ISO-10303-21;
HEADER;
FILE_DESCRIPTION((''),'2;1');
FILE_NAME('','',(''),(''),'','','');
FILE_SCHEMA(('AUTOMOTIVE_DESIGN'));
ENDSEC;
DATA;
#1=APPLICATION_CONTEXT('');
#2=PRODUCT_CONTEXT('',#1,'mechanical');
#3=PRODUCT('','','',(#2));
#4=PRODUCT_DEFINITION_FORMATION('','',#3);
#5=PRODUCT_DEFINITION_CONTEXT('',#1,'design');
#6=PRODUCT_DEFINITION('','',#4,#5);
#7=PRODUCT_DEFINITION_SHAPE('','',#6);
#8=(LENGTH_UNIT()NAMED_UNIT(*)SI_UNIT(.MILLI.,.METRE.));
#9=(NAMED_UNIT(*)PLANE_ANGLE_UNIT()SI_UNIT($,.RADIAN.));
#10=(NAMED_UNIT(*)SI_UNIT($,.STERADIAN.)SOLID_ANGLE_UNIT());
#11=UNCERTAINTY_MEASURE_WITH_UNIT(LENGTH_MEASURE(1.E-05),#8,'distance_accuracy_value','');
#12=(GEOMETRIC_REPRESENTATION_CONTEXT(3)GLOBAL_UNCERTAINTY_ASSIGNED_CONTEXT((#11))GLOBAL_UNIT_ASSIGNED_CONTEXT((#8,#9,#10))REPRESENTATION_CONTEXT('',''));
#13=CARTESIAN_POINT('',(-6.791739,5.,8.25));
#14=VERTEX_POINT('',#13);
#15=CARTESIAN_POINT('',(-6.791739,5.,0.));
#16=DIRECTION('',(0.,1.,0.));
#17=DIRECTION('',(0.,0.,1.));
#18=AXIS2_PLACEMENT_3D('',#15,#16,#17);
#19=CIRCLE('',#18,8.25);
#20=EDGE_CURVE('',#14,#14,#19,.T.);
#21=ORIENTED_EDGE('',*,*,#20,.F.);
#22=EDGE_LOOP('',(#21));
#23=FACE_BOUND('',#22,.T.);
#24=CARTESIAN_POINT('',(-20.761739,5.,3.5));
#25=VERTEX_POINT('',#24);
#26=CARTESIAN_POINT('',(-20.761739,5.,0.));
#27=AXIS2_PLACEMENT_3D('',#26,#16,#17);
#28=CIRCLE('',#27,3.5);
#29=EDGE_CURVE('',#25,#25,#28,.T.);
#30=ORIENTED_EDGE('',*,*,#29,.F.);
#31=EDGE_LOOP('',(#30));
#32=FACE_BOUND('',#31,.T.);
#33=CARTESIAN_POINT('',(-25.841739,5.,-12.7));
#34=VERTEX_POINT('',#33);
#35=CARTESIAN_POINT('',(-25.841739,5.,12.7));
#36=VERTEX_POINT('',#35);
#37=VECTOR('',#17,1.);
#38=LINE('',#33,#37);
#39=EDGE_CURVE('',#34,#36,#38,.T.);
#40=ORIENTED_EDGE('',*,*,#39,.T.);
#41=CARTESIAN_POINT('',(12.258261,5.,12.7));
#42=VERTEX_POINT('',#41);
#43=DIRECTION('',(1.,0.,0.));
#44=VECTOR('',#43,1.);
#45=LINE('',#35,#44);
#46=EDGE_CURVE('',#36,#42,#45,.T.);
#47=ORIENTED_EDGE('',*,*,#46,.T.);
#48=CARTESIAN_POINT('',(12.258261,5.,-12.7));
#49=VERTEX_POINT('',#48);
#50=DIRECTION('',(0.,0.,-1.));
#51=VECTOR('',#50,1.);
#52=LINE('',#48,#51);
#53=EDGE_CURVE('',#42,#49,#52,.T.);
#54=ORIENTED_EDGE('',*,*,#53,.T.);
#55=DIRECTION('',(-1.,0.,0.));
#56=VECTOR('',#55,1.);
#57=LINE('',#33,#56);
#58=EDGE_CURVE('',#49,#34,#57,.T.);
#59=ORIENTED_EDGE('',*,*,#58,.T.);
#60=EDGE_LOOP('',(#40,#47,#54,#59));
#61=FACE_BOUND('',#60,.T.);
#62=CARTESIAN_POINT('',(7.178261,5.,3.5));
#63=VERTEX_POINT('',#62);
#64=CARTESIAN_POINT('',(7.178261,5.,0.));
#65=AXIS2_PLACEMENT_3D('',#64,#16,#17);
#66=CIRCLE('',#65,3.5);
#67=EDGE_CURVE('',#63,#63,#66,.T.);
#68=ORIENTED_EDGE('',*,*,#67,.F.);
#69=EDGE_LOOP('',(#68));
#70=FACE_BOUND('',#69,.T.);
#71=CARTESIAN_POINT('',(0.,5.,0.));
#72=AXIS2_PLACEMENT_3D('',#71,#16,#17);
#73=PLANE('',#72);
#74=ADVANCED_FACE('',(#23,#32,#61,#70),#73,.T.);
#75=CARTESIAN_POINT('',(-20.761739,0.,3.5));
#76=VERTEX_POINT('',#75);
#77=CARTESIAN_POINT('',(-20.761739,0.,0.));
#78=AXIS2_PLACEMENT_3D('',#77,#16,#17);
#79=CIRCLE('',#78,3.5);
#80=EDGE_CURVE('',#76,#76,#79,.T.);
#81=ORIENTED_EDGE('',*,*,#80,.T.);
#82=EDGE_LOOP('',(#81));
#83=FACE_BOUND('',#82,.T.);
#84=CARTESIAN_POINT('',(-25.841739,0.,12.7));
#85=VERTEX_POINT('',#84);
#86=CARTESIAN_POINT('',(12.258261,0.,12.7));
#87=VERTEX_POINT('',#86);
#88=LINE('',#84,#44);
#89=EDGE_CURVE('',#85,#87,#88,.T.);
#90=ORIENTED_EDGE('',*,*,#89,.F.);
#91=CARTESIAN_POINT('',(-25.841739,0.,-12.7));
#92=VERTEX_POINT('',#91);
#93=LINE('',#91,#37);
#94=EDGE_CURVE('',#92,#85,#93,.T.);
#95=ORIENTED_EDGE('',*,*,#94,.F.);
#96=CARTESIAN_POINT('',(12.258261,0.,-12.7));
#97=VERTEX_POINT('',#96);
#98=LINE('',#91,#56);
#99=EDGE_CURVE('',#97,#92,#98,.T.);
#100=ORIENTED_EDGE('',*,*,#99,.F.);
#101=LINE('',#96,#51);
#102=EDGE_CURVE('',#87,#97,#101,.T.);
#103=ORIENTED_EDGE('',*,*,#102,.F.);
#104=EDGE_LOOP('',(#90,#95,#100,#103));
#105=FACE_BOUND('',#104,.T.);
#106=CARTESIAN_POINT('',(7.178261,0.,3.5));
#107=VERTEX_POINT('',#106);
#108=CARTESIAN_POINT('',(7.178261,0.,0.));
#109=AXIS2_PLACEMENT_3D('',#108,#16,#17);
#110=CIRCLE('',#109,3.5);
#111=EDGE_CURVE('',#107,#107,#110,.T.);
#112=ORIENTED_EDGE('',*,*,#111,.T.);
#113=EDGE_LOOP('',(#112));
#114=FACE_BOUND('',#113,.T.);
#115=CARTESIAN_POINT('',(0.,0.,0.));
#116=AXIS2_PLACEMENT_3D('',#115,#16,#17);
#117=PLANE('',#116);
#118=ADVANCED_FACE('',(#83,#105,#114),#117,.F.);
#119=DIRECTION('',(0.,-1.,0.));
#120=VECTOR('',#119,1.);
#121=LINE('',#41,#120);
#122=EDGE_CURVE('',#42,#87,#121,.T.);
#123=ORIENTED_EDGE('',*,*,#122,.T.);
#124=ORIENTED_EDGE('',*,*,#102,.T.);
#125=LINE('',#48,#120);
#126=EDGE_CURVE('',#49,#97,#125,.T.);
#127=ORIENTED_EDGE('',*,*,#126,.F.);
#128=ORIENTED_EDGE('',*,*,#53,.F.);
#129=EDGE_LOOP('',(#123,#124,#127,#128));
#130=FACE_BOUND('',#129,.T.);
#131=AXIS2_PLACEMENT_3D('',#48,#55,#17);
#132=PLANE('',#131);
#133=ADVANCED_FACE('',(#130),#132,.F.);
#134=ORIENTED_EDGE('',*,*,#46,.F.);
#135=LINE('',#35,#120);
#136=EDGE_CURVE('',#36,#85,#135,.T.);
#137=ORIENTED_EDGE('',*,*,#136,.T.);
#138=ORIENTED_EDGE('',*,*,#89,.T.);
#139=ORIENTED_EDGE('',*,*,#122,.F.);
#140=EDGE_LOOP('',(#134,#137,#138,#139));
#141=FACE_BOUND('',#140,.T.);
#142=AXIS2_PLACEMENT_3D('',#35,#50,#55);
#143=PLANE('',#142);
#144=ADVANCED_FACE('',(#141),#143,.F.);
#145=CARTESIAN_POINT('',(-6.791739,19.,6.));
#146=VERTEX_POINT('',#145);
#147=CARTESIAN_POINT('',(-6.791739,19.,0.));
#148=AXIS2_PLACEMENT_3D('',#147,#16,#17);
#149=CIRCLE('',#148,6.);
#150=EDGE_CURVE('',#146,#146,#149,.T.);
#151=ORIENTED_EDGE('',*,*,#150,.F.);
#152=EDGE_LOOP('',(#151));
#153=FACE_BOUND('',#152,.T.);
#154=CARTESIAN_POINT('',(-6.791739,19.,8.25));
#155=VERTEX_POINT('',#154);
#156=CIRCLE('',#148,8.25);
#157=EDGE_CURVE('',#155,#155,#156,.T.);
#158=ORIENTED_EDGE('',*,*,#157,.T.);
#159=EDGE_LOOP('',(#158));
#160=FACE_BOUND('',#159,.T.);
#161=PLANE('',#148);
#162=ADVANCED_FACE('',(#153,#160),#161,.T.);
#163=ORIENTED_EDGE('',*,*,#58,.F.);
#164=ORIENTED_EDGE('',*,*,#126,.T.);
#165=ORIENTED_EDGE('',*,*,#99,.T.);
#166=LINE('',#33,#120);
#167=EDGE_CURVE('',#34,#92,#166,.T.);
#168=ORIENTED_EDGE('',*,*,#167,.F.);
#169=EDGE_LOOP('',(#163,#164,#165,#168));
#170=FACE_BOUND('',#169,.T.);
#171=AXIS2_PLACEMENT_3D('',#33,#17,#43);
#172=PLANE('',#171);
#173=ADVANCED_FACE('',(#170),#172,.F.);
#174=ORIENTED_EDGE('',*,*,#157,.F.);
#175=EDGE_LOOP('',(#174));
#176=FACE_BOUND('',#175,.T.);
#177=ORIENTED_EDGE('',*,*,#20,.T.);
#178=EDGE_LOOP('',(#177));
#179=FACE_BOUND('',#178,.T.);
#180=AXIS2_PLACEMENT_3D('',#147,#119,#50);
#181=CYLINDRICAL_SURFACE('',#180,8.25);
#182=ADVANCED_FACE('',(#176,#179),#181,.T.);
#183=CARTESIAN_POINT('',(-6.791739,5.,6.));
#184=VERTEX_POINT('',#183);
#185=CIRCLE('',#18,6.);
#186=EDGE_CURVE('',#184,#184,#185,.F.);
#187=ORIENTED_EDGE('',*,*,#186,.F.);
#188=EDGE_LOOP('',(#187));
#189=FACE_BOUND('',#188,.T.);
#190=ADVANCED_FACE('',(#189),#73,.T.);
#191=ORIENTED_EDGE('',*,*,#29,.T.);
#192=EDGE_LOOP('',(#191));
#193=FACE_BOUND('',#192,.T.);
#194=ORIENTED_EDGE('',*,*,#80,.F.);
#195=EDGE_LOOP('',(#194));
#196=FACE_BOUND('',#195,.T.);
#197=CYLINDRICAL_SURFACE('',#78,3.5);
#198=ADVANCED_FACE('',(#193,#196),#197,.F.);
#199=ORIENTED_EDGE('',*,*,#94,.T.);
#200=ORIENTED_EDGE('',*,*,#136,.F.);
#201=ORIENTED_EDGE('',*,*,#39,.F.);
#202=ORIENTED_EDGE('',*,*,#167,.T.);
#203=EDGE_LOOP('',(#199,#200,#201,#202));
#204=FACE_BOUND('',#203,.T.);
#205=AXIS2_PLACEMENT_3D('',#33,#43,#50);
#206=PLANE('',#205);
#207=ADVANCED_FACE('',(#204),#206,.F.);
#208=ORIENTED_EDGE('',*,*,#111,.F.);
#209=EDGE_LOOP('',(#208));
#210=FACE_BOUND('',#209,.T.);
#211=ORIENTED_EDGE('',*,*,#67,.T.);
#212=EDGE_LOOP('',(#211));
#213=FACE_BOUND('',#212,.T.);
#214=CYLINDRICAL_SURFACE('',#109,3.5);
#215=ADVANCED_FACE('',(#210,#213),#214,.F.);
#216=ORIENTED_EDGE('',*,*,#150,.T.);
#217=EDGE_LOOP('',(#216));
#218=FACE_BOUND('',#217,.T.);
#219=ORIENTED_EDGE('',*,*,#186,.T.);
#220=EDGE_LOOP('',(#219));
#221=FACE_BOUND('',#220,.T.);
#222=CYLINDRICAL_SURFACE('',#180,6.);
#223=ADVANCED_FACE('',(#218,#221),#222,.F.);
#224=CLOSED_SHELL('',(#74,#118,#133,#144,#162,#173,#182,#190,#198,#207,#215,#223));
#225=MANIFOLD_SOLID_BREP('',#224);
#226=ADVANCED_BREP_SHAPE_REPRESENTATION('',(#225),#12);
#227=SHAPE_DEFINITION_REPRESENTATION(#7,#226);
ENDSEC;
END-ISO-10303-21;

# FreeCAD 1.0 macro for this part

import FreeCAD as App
import Part
import Sketcher


def add_polygon(sketch, points):
    """Adds a closed chain of lines whose ends are joined by coincident constraints."""
    first, n = sketch.GeometryCount, len(points)
    for a, b in zip(points, points[1:] + points[:1]):
        sketch.addGeometry(Part.LineSegment(App.Vector(*a, 0), App.Vector(*b, 0)), False)
    for i in range(n):
        sketch.addConstraint(Sketcher.Constraint("Coincident", first + i, 2, first + (i + 1) % n, 1))

doc = App.newDocument("Part")
body = doc.addObject("PartDesign::Body", "Body")

# Sketch on XZ plane
sketch1 = body.newObject("Sketcher::SketchObject", "Sketch")
sketch1.AttachmentSupport = (doc.getObject("XZ_Plane"), [""])
sketch1.MapMode = "FlatFace"
add_polygon(sketch1, [(-26, -13), (-26, 13), (12, 13), (12, -13)])  # lines 0-3
sketch1.addConstraint(Sketcher.Constraint("Vertical", 0))
sketch1.addConstraint(Sketcher.Constraint("Horizontal", 1))
sketch1.addConstraint(Sketcher.Constraint("Vertical", 2))
sketch1.addConstraint(Sketcher.Constraint("Horizontal", 3))
sketch1.addConstraint(Sketcher.Constraint("DistanceX", 1, 1, 1, 2, 38.1))
sketch1.addConstraint(Sketcher.Constraint("DistanceY", 0, 1, 0, 2, 25.4))
sketch1.addConstraint(Sketcher.Constraint("DistanceY", -1, 1, 0, 2, 12.7))
sketch1.addConstraint(Sketcher.Constraint("DistanceX", 0, 2, -1, 1, 25.841739))
pad1 = body.newObject("PartDesign::Pad", "Pad")
pad1.Profile = sketch1
pad1.Length = 5
pad1.Reversed = True

# Sketch on XZ plane
sketch2 = body.newObject("Sketcher::SketchObject", "Sketch001")
sketch2.AttachmentSupport = (doc.getObject("XZ_Plane"), [""])
sketch2.MapMode = "FlatFace"
sketch2.AttachmentOffset = App.Placement(App.Vector(0, 0, -5), App.Rotation())
sketch2.addGeometry(Part.Circle(App.Vector(-7, 0, 0), App.Vector(0, 0, 1), 8), False)
sketch2.addGeometry(Part.Circle(App.Vector(-7, 0, 0), App.Vector(0, 0, 1), 6), False)
sketch2.addConstraint(Sketcher.Constraint("Coincident", 1, 3, 0, 3))
sketch2.addConstraint(Sketcher.Constraint("PointOnObject", 0, 3, -1))
sketch2.addConstraint(Sketcher.Constraint("Diameter", 1, 12.0))
sketch2.addConstraint(Sketcher.Constraint("Diameter", 0, 16.5))
sketch2.addConstraint(Sketcher.Constraint("DistanceX", 0, 3, -1, 1, 6.791739))
pad2 = body.newObject("PartDesign::Pad", "Pad001")
pad2.Profile = sketch2
pad2.Length = 14
pad2.Reversed = True

# Sketch on XZ plane
sketch3 = body.newObject("Sketcher::SketchObject", "Sketch002")
sketch3.AttachmentSupport = (doc.getObject("XZ_Plane"), [""])
sketch3.MapMode = "FlatFace"
sketch3.AttachmentOffset = App.Placement(App.Vector(0, 0, -5), App.Rotation())
sketch3.addGeometry(Part.Circle(App.Vector(7.2, 0, 0), App.Vector(0, 0, 1), 3.5), False)
sketch3.addGeometry(Part.Circle(App.Vector(-20.8, 0, 0), App.Vector(0, 0, 1), 3.5), False)
sketch3.addConstraint(Sketcher.Constraint("Equal", 0, 1))
sketch3.addConstraint(Sketcher.Constraint("PointOnObject", 0, 3, -1))
sketch3.addConstraint(Sketcher.Constraint("PointOnObject", 1, 3, -1))
sketch3.addConstraint(Sketcher.Constraint("Diameter", 0, 7.0))
sketch3.addConstraint(Sketcher.Constraint("DistanceX", 1, 3, 0, 3, 27.94))
sketch3.addConstraint(Sketcher.Constraint("DistanceX", -1, 1, 0, 3, 7.178261))
pocket1 = body.newObject("PartDesign::Pocket", "Pocket")
pocket1.Profile = sketch3
pocket1.Type = "ThroughAll"
pocket1.Reversed = True

doc.recompute()
